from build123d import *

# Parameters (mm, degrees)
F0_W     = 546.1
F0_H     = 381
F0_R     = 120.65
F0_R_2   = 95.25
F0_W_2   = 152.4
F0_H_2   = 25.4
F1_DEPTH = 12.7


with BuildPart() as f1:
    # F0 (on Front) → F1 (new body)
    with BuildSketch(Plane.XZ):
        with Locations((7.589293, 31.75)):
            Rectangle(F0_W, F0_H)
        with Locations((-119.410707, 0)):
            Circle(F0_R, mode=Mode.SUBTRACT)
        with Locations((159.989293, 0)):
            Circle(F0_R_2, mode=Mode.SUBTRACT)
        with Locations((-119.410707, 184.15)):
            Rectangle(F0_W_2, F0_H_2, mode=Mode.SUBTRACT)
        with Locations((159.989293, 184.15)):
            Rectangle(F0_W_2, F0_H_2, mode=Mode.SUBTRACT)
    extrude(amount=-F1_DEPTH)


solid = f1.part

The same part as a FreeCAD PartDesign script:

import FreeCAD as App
import Part
import Sketcher

V = App.Vector
Q = App.Units.Quantity


def add_polygon(sketch, points):
    """Adds a closed chain of lines whose ends are joined by coincident constraints."""
    first, n = sketch.GeometryCount, len(points)
    for a, b in zip(points, points[1:] + points[:1]):
        sketch.addGeometry(Part.LineSegment(App.Vector(*a, 0), App.Vector(*b, 0)), False)
    for i in range(n):
        sketch.addConstraint(Sketcher.Constraint("Coincident", first + i, 2, first + (i + 1) % n, 1))

doc = App.newDocument("Part")
body = doc.addObject("PartDesign::Body", "Body")

sketch1 = body.newObject("Sketcher::SketchObject", "Sketch")
sketch1.AttachmentSupport = (doc.getObject("XZ_Plane"), [""])
sketch1.MapMode = "FlatFace"
add_polygon(sketch1, [(-265, 222), (-265, -159), (281, -159), (281, 222)])
sketch1.addGeometry(Part.Circle(V(-119, 0, 0), V(0, 0, 1), 121), False)
sketch1.addGeometry(Part.Circle(V(160, 0, 0), V(0, 0, 1), 95), False)
add_polygon(sketch1, [(-43, 171), (-196, 171), (-196, 197), (-43, 197)])
add_polygon(sketch1, [(236, 171), (84, 171), (84, 197), (236, 197)])
sketch1.addConstraint([
    Sketcher.Constraint("Vertical", 0),
    Sketcher.Constraint("Horizontal", 1),
    Sketcher.Constraint("Vertical", 2),
    Sketcher.Constraint("Horizontal", 3),
    Sketcher.Constraint("Horizontal", 6),
    Sketcher.Constraint("Vertical", 7),
    Sketcher.Constraint("Horizontal", 8),
    Sketcher.Constraint("Vertical", 9),
    Sketcher.Constraint("Horizontal", 10),
    Sketcher.Constraint("Vertical", 11),
    Sketcher.Constraint("Horizontal", 12),
    Sketcher.Constraint("Vertical", 13),
    Sketcher.Constraint("PointOnObject", 4, 3, -1),
    Sketcher.Constraint("PointOnObject", 5, 3, -1),
    Sketcher.Constraint("Horizontal", 9, 2, 10, 2),
    Sketcher.Constraint("Horizontal", 8, 2, 11, 2),
    Sketcher.Constraint("Equal", 8, 10),
    Sketcher.Constraint("Diameter", 4, Q("9.5 in")),
    Sketcher.Constraint("Diameter", 5, Q("7.5 in")),
    Sketcher.Constraint("DistanceX", 6, 2, 6, 1, Q("6 in")),
    Sketcher.Constraint("DistanceY", 0, 2, 0, 1, Q("15 in")),
    Sketcher.Constraint("DistanceY", 7, 1, 7, 2, Q("1 in")),
    Sketcher.Constraint("DistanceX", 1, 1, 1, 2, Q("21.5 in")),
    Sketcher.Constraint("DistanceX", 4, 3, 5, 3, Q("11 in")),
    Sketcher.Constraint("DistanceY", 6, 2, 3, 2, Q("2 in")),
    Sketcher.Constraint("DistanceX", 6, 2, 4, 3, Q("3 in")),
    Sketcher.Constraint("DistanceX", 9, 2, 10, 2, Q("5 in")),
    Sketcher.Constraint("DistanceY", 0, 2, -1, 1, Q("6.25 in")),
    Sketcher.Constraint("DistanceX", 0, 2, 4, 3, Q("5.75 in")),
    Sketcher.Constraint("DistanceX", 4, 3, -1, 1, Q("119.410707 mm")),
])
pad1 = body.newObject("PartDesign::Pad", "Pad")
pad1.Profile = sketch1
pad1.Length = Q("0.5 in")
pad1.Reversed = True

doc.recompute()
